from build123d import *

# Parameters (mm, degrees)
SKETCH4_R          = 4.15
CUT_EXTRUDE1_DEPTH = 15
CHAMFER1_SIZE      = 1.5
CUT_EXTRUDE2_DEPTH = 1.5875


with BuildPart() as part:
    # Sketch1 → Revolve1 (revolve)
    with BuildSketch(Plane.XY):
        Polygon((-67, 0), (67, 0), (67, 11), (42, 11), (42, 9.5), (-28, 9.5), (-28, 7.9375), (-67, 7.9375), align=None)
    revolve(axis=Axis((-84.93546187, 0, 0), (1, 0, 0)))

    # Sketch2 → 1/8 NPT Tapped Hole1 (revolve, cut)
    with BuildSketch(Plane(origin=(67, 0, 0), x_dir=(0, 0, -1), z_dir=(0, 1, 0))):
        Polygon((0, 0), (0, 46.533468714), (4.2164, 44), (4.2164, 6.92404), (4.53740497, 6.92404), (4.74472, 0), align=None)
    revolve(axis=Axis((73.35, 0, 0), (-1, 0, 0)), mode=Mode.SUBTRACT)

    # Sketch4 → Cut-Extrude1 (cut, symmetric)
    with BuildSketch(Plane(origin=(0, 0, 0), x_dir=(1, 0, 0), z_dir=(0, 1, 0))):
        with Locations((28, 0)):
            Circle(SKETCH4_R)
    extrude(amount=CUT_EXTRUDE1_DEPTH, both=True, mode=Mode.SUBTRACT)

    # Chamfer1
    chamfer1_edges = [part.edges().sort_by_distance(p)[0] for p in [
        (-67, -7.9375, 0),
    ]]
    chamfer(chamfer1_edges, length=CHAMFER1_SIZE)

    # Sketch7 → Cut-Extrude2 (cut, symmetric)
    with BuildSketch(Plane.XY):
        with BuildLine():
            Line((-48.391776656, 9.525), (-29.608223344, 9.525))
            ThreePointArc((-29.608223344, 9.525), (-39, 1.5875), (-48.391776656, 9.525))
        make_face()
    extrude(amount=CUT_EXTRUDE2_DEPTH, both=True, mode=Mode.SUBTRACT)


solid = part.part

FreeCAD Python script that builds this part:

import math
import FreeCAD as App
import Part
import Sketcher
from FreeCAD import Vector
Q = App.Units.Quantity


def edges_at(feature, points):
    """Names of the edges that pass closest to the given points."""
    edges = feature.Shape.Edges
    near = lambda p: min(range(len(edges)), key=lambda i: edges[i].distToShape(Part.Vertex(*p))[0])
    return sorted({f"Edge{near(p) + 1}" for p in points})

doc = App.newDocument("Part")
body = doc.addObject("PartDesign::Body", "Body")

sketch1 = doc.addObject("Sketcher::SketchObject", "Sketch")
body.addObject(sketch1)
sketch1.AttachmentSupport = (doc.XY_Plane, [""])
sketch1.MapMode = "FlatFace"
sketch1.addGeometry([
    Part.LineSegment(Vector(-67, 0, 0), Vector(67, 0, 0)),
    Part.LineSegment(Vector(67, 0, 0), Vector(67, 11, 0)),
    Part.LineSegment(Vector(67, 11, 0), Vector(42, 11, 0)),
    Part.LineSegment(Vector(42, 11, 0), Vector(42, 9.5, 0)),
    Part.LineSegment(Vector(42, 9.5, 0), Vector(-28, 9.5, 0)),
    Part.LineSegment(Vector(-28, 9.5, 0), Vector(-28, 7.9, 0)),
    Part.LineSegment(Vector(-28, 7.9, 0), Vector(-67, 7.9, 0)),
    Part.LineSegment(Vector(-67, 7.9, 0), Vector(-67, 0, 0)),
], False)
sketch1.addConstraint([
    Sketcher.Constraint("Coincident", 0, 2, 1, 1),
    Sketcher.Constraint("Coincident", 1, 2, 2, 1),
    Sketcher.Constraint("Coincident", 2, 2, 3, 1),
    Sketcher.Constraint("Coincident", 3, 2, 4, 1),
    Sketcher.Constraint("Coincident", 4, 2, 5, 1),
    Sketcher.Constraint("Coincident", 5, 2, 6, 1),
    Sketcher.Constraint("Coincident", 6, 2, 7, 1),
    Sketcher.Constraint("Coincident", 7, 2, 0, 1),
    Sketcher.Constraint("Horizontal", 0),
    Sketcher.Constraint("Vertical", 1),
    Sketcher.Constraint("Horizontal", 2),
    Sketcher.Constraint("Vertical", 3),
    Sketcher.Constraint("Horizontal", 4),
    Sketcher.Constraint("Vertical", 5),
    Sketcher.Constraint("Horizontal", 6),
    Sketcher.Constraint("Vertical", 7),
    Sketcher.Constraint("Symmetric", 0, 2, 7, 2, -1, 1),
    Sketcher.Constraint("DistanceX", 0, 1, 0, 2, 134.0),
    Sketcher.Constraint("DistanceX", 2, 2, 2, 1, 25.0),
    Sketcher.Constraint("DistanceX", 4, 2, 4, 1, 70.0),
    Sketcher.Constraint("DistanceY", 1, 1, 1, 2, 11.0),
    Sketcher.Constraint("DistanceY", 3, 2, 3, 1, 1.5),
    Sketcher.Constraint("DistanceY", 5, 2, 5, 1, 1.5625),
])
revolution = doc.addObject("PartDesign::Revolution", "Revolution")
body.addObject(revolution)
revolution.Profile = sketch1
revolution.ReferenceAxis = (sketch1, ["H_Axis"])
revolution.Angle = 360

sketch2 = doc.addObject("Sketcher::SketchObject", "Sketch001")
body.addObject(sketch2)
sketch2.AttachmentSupport = (doc.XZ_Plane, [""])
sketch2.MapMode = "FlatFace"
sketch2.addGeometry([
    Part.LineSegment(Vector(20.47, 0, 0), Vector(67, 0, 0)),
    Part.LineSegment(Vector(67, 0, 0), Vector(67, -4.74, 0)),
    Part.LineSegment(Vector(67, -4.74, 0), Vector(60.08, -4.54, 0)),
    Part.LineSegment(Vector(60.08, -4.54, 0), Vector(60.08, -4.22, 0)),
    Part.LineSegment(Vector(60.08, -4.22, 0), Vector(23, -4.22, 0)),
    Part.LineSegment(Vector(23, -4.22, 0), Vector(20.47, 0, 0)),
], False)
sketch2.addConstraint([
    Sketcher.Constraint("Coincident", 0, 2, 1, 1),
    Sketcher.Constraint("Coincident", 1, 2, 2, 1),
    Sketcher.Constraint("Coincident", 2, 2, 3, 1),
    Sketcher.Constraint("Coincident", 3, 2, 4, 1),
    Sketcher.Constraint("Coincident", 4, 2, 5, 1),
    Sketcher.Constraint("Coincident", 5, 2, 0, 1),
    Sketcher.Constraint("Horizontal", 0),
    Sketcher.Constraint("Vertical", 1),
    Sketcher.Constraint("Vertical", 3),
    Sketcher.Constraint("Horizontal", 4),
    Sketcher.Constraint("PointOnObject", 0, 2, -1),
    Sketcher.Constraint("Angle", 5, Q("121 deg")),
    Sketcher.Constraint("DistanceX", -1, 1, 0, 2, 67.0),
    Sketcher.Constraint("DistanceX", -1, 1, 4, 2, 23.0),
    Sketcher.Constraint("DistanceX", 0, 1, 0, 2, 46.533469),
    Sketcher.Constraint("DistanceX", 4, 2, 4, 1, 37.07596),
    Sketcher.Constraint("DistanceY", 1, 2, 1, 1, 4.74472),
    Sketcher.Constraint("DistanceY", 3, 1, 3, 2, 0.321005),
])
groove = doc.addObject("PartDesign::Groove", "Groove")
body.addObject(groove)
groove.Profile = sketch2
groove.ReferenceAxis = (sketch2, ["H_Axis"])
groove.Angle = 360

sketch3 = doc.addObject("Sketcher::SketchObject", "Sketch002")
body.addObject(sketch3)
sketch3.AttachmentSupport = (doc.XZ_Plane, [""])
sketch3.MapMode = "FlatFace"
sketch3.addGeometry(Part.Circle(Vector(28, 0, 0), Vector(0, 0, 1), 4.2), False)
sketch3.addConstraint([
    Sketcher.Constraint("PointOnObject", 0, 3, -1),
    Sketcher.Constraint("Diameter", 0, 8.3),
    Sketcher.Constraint("DistanceX", -1, 1, 0, 3, 28.0),
])
pocket1 = doc.addObject("PartDesign::Pocket", "Pocket")
body.addObject(pocket1)
pocket1.Profile = sketch3
pocket1.Length = 30
pocket1.Midplane = True
doc.recompute()

chamfer = doc.addObject("PartDesign::Chamfer", "Chamfer")
body.addObject(chamfer)
chamfer.Base = (pocket1, edges_at(pocket1, [(-67, -7.938, 0)]))
chamfer.Size = 1.5

sketch4 = doc.addObject("Sketcher::SketchObject", "Sketch003")
body.addObject(sketch4)
sketch4.AttachmentSupport = (doc.XY_Plane, [""])
sketch4.MapMode = "FlatFace"
sketch4.addGeometry([
    Part.LineSegment(Vector(-30, 10, 0), Vector(-48, 10, 0)),
    Part.ArcOfCircle(Part.Circle(Vector(-39, 11, 0), Vector(0, 0, 1), 10), math.radians(-170), math.radians(-10)),
], False)
sketch4.addConstraint([
    Sketcher.Constraint("Coincident", 0, 1, 1, 2),
    Sketcher.Constraint("Coincident", 1, 1, 0, 2),
    Sketcher.Constraint("Horizontal", 0),
    Sketcher.Constraint("DistanceX", 1, 3, -1, 1, 39.0),
    Sketcher.Constraint("Radius", 1, 9.525),
    Sketcher.Constraint("DistanceY", -1, 1, 0, 1, 9.525),
    Sketcher.Constraint("DistanceY", -1, 1, 1, 3, 11.1125),
])
pocket2 = doc.addObject("PartDesign::Pocket", "Pocket001")
body.addObject(pocket2)
pocket2.Profile = sketch4
pocket2.Length = 3.175
pocket2.Midplane = True

doc.recompute()
